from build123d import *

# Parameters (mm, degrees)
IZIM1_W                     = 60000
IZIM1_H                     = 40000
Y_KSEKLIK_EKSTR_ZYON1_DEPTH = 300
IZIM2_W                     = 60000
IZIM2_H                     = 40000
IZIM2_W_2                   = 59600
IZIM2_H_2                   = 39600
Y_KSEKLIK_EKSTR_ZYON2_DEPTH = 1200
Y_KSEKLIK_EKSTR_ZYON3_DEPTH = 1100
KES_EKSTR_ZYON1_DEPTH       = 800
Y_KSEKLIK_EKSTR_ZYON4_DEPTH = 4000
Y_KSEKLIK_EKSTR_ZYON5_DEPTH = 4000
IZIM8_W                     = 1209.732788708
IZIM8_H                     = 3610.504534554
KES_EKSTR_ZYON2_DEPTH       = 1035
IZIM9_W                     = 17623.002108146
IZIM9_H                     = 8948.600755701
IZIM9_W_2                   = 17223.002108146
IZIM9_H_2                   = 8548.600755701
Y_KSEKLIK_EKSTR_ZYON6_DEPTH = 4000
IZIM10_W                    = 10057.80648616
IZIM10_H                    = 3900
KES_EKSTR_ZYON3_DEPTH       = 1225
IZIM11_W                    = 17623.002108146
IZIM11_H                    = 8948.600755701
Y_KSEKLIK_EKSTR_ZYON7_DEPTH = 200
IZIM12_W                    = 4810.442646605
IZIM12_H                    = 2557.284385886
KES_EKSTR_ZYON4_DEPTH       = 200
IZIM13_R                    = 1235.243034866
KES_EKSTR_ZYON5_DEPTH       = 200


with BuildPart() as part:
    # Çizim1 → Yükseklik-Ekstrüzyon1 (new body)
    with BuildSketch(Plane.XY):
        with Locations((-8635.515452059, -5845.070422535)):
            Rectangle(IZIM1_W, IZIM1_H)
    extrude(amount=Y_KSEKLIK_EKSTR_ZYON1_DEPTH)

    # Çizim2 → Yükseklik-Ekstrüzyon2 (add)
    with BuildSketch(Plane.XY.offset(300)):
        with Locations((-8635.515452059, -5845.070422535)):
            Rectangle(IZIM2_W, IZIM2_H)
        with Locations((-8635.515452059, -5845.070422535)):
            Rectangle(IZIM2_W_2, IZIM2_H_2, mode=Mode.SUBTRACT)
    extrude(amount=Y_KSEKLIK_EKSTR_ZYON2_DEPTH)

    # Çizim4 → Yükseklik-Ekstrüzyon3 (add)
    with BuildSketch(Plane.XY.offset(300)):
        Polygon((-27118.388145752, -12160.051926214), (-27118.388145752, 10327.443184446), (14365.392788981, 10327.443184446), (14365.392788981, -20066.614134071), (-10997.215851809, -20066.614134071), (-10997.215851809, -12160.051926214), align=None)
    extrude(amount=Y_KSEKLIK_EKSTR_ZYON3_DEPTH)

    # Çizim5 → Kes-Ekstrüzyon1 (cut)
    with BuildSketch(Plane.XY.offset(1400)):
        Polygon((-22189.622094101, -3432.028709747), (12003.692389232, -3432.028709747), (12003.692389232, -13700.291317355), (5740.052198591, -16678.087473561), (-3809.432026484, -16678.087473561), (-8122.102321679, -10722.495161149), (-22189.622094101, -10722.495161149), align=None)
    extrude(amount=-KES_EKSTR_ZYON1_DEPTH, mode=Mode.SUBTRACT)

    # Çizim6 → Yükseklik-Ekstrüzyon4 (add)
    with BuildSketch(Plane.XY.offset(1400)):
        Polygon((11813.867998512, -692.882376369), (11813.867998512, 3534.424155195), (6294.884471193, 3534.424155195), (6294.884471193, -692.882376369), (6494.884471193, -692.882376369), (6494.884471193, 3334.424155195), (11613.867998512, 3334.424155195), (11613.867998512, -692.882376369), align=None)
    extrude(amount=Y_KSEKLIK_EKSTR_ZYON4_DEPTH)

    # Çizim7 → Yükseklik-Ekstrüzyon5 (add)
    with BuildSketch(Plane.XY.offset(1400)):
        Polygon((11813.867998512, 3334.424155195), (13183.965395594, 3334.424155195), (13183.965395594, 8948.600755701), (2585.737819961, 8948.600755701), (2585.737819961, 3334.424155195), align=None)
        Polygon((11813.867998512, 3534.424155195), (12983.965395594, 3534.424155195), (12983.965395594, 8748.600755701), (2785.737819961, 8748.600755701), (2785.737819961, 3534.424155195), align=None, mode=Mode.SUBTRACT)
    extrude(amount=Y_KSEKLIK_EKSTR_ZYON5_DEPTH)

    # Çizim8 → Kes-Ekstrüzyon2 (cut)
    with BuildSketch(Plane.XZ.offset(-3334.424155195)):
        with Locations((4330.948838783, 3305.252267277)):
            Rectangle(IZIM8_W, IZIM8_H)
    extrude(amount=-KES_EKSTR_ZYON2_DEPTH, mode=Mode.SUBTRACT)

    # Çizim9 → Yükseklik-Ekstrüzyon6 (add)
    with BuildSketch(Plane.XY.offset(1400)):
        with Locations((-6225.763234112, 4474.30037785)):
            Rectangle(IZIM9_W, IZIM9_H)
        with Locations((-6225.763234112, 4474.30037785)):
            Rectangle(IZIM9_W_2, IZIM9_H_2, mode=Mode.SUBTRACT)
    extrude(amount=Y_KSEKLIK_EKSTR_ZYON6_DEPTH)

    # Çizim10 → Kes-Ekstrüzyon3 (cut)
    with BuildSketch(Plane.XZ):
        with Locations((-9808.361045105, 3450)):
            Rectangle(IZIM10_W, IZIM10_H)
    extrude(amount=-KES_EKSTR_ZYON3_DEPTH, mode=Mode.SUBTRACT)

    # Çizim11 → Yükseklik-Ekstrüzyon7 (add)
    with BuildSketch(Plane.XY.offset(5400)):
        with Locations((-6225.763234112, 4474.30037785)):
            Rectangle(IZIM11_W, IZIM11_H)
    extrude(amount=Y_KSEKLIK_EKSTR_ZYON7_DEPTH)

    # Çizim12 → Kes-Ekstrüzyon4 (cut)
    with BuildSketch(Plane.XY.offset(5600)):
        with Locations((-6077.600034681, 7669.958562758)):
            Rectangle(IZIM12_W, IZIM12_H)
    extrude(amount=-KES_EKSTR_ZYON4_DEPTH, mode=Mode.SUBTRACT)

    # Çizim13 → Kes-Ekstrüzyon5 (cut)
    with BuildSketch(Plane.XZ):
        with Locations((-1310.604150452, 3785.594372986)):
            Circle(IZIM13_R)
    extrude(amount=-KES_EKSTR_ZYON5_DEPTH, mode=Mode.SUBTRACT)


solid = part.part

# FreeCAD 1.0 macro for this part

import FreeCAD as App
import Part
import Sketcher


def add_polygon(sketch, points):
    """Adds a closed chain of lines whose ends are joined by coincident constraints."""
    first, n = sketch.GeometryCount, len(points)
    for a, b in zip(points, points[1:] + points[:1]):
        sketch.addGeometry(Part.LineSegment(App.Vector(*a, 0), App.Vector(*b, 0)), False)
    for i in range(n):
        sketch.addConstraint(Sketcher.Constraint("Coincident", first + i, 2, first + (i + 1) % n, 1))

doc = App.newDocument("Part")
body = doc.addObject("PartDesign::Body", "Body")

sketch1 = body.newObject("Sketcher::SketchObject", "Sketch")
sketch1.AttachmentSupport = (doc.getObject("XY_Plane"), [""])
sketch1.MapMode = "FlatFace"
add_polygon(sketch1, [(-38636, 14155), (-38636, -25845), (21364, -25845), (21364, 14155)])
sketch1.addConstraint([
    Sketcher.Constraint("Vertical", 0),
    Sketcher.Constraint("Horizontal", 1),
    Sketcher.Constraint("Vertical", 2),
    Sketcher.Constraint("Horizontal", 3),
    Sketcher.Constraint("DistanceX", 1, 1, 1, 2, 60000.0),
    Sketcher.Constraint("DistanceY", 0, 2, 0, 1, 40000.0),
    Sketcher.Constraint("DistanceX", 0, 2, -1, 1, 38635.515452),
    Sketcher.Constraint("DistanceY", 0, 2, -1, 1, 25845.070423),
])
pad1 = body.newObject("PartDesign::Pad", "Pad")
pad1.Profile = sketch1
pad1.Length = 300

sketch2 = body.newObject("Sketcher::SketchObject", "Sketch001")
sketch2.AttachmentSupport = (doc.getObject("XY_Plane"), [""])
sketch2.MapMode = "FlatFace"
sketch2.AttachmentOffset = App.Placement(App.Vector(0, 0, 300), App.Rotation())
add_polygon(sketch2, [(-38636, 14155), (-38636, -25845), (21364, -25845), (21364, 14155)])
add_polygon(sketch2, [(21164, -25645), (-38436, -25645), (-38436, 13955), (21164, 13955)])
sketch2.addConstraint([
    Sketcher.Constraint("Vertical", 0),
    Sketcher.Constraint("Horizontal", 1),
    Sketcher.Constraint("Vertical", 2),
    Sketcher.Constraint("Horizontal", 3),
    Sketcher.Constraint("Horizontal", 4),
    Sketcher.Constraint("Vertical", 5),
    Sketcher.Constraint("Horizontal", 6),
    Sketcher.Constraint("Vertical", 7),
    Sketcher.Constraint("DistanceX", 1, 1, 1, 2, 60000.0),
    Sketcher.Constraint("DistanceX", 4, 2, 4, 1, 59600.0),
    Sketcher.Constraint("DistanceY", 0, 2, 0, 1, 40000.0),
    Sketcher.Constraint("DistanceY", 5, 1, 5, 2, 39600.0),
    Sketcher.Constraint("DistanceX", 0, 2, 4, 2, 200.0),
    Sketcher.Constraint("DistanceY", 0, 2, 4, 2, 200.0),
    Sketcher.Constraint("DistanceX", 0, 2, -1, 1, 38635.515452),
    Sketcher.Constraint("DistanceY", 0, 2, -1, 1, 25845.070423),
])
pad2 = body.newObject("PartDesign::Pad", "Pad001")
pad2.Profile = sketch2
pad2.Length = 1200

sketch3 = body.newObject("Sketcher::SketchObject", "Sketch002")
sketch3.AttachmentSupport = (doc.getObject("XY_Plane"), [""])
sketch3.MapMode = "FlatFace"
sketch3.AttachmentOffset = App.Placement(App.Vector(0, 0, 300), App.Rotation())
add_polygon(sketch3, [(-27118, 10327), (-27118, -12160), (-10997, -12160), (-10997, -20067), (14365, -20067), (14365, 10327)])
sketch3.addConstraint([
    Sketcher.Constraint("Vertical", 0),
    Sketcher.Constraint("Horizontal", 1),
    Sketcher.Constraint("Vertical", 2),
    Sketcher.Constraint("Horizontal", 3),
    Sketcher.Constraint("Vertical", 4),
    Sketcher.Constraint("Horizontal", 5),
    Sketcher.Constraint("DistanceX", 3, 1, 3, 2, 25362.608641),
    Sketcher.Constraint("DistanceY", 0, 2, 0, 1, 22487.495111),
    Sketcher.Constraint("DistanceY", 4, 1, 4, 2, 30394.057319),
    Sketcher.Constraint("DistanceX", 1, 1, 1, 2, 16121.172294),
    Sketcher.Constraint("DistanceX", 1, 2, -1, 1, 10997.215852),
    Sketcher.Constraint("DistanceY", 0, 2, -1, 1, 12160.051926),
])
pad3 = body.newObject("PartDesign::Pad", "Pad002")
pad3.Profile = sketch3
pad3.Length = 1100

sketch4 = body.newObject("Sketcher::SketchObject", "Sketch003")
sketch4.AttachmentSupport = (doc.getObject("XY_Plane"), [""])
sketch4.MapMode = "FlatFace"
sketch4.AttachmentOffset = App.Placement(App.Vector(0, 0, 1400), App.Rotation())
add_polygon(sketch4, [(12004, -3432), (-22190, -3432), (-22190, -10722), (-8122, -10722), (-3809, -16678), (5740, -16678), (12004, -13700)])
sketch4.addConstraint([
    Sketcher.Constraint("Horizontal", 0),
    Sketcher.Constraint("Vertical", 1),
    Sketcher.Constraint("Horizontal", 2),
    Sketcher.Constraint("Horizontal", 4),
    Sketcher.Constraint("Vertical", 6),
    Sketcher.Constraint("Distance", 5, 6935.4494),
    Sketcher.Constraint("DistanceY", 1, 2, 1, 1, 7290.466451),
    Sketcher.Constraint("DistanceX", -1, 1, 4, 2, 5740.052199),
    Sketcher.Constraint("DistanceX", 0, 2, 0, 1, 34193.314483),
    Sketcher.Constraint("DistanceX", 2, 1, 2, 2, 14067.519772),
    Sketcher.Constraint("DistanceX", 4, 1, 4, 2, 9549.484225),
    Sketcher.Constraint("DistanceY", 6, 1, 6, 2, 10268.262608),
    Sketcher.Constraint("DistanceY", 0, 2, -1, 1, 3432.02871),
    Sketcher.Constraint("DistanceX", 2, 2, -1, 1, 8122.102322),
])
pocket1 = body.newObject("PartDesign::Pocket", "Pocket")
pocket1.Profile = sketch4
pocket1.Length = 800

sketch5 = body.newObject("Sketcher::SketchObject", "Sketch004")
sketch5.AttachmentSupport = (doc.getObject("XY_Plane"), [""])
sketch5.MapMode = "FlatFace"
sketch5.AttachmentOffset = App.Placement(App.Vector(0, 0, 1400), App.Rotation())
add_polygon(sketch5, [(11814, -693), (11814, 3534), (6295, 3534), (6295, -693), (6495, -693), (6495, 3334), (11614, 3334), (11614, -693)])
sketch5.addConstraint([
    Sketcher.Constraint("Vertical", 0),
    Sketcher.Constraint("Horizontal", 1),
    Sketcher.Constraint("Vertical", 2),
    Sketcher.Constraint("Horizontal", 3),
    Sketcher.Constraint("Vertical", 4),
    Sketcher.Constraint("Horizontal", 5),
    Sketcher.Constraint("Vertical", 6),
    Sketcher.Constraint("Horizontal", 7),
    Sketcher.Constraint("Horizontal", 3, 2, 6, 2),
    Sketcher.Constraint("Equal", 3, 7),
    Sketcher.Constraint("DistanceX", 3, 1, 3, 2, 200.0),
    Sketcher.Constraint("DistanceY", 4, 2, 1, 2, 200.0),
    Sketcher.Constraint("DistanceX", -1, 1, 0, 2, 11813.867999),
    Sketcher.Constraint("DistanceY", 0, 1, 0, 2, 4227.306532),
    Sketcher.Constraint("DistanceX", 1, 2, 1, 1, 5518.983527),
    Sketcher.Constraint("DistanceY", -1, 1, 0, 2, 3534.424155),
])
pad4 = body.newObject("PartDesign::Pad", "Pad003")
pad4.Profile = sketch5
pad4.Length = 4000

sketch6 = body.newObject("Sketcher::SketchObject", "Sketch005")
sketch6.AttachmentSupport = (doc.getObject("XY_Plane"), [""])
sketch6.MapMode = "FlatFace"
sketch6.AttachmentOffset = App.Placement(App.Vector(0, 0, 1400), App.Rotation())
add_polygon(sketch6, [(13184, 3334), (13184, 8949), (2586, 8949), (2586, 3334)])
add_polygon(sketch6, [(12984, 3534), (2786, 3534), (2786, 8749), (12984, 8749)])
sketch6.addConstraint([
    Sketcher.Constraint("Vertical", 0),
    Sketcher.Constraint("Horizontal", 1),
    Sketcher.Constraint("Vertical", 2),
    Sketcher.Constraint("Horizontal", 3),
    Sketcher.Constraint("Horizontal", 4),
    Sketcher.Constraint("Vertical", 5),
    Sketcher.Constraint("Horizontal", 6),
    Sketcher.Constraint("Vertical", 7),
    Sketcher.Constraint("DistanceX", 2, 2, 4, 2, 200.0),
    Sketcher.Constraint("DistanceY", 2, 2, 4, 2, 200.0),
    Sketcher.Constraint("DistanceY", 5, 2, 1, 2, 200.0),
    Sketcher.Constraint("DistanceX", 6, 2, 0, 2, 200.0),
    Sketcher.Constraint("DistanceY", 0, 1, 0, 2, 5614.176601),
    Sketcher.Constraint("DistanceX", 1, 2, 1, 1, 10598.227576),
    Sketcher.Constraint("DistanceX", -1, 1, 1, 2, 2585.73782),
    Sketcher.Constraint("DistanceY", -1, 1, 0, 2, 8948.600756),
])
pad5 = body.newObject("PartDesign::Pad", "Pad004")
pad5.Profile = sketch6
pad5.Length = 4000

sketch7 = body.newObject("Sketcher::SketchObject", "Sketch006")
sketch7.AttachmentSupport = (doc.getObject("XZ_Plane"), [""])
sketch7.MapMode = "FlatFace"
sketch7.AttachmentOffset = App.Placement(App.Vector(0, 0, -3334.424155), App.Rotation())
add_polygon(sketch7, [(3726, 5111), (3726, 1500), (4936, 1500), (4936, 5111)])
sketch7.addConstraint([
    Sketcher.Constraint("Vertical", 0),
    Sketcher.Constraint("Horizontal", 1),
    Sketcher.Constraint("Vertical", 2),
    Sketcher.Constraint("Horizontal", 3),
    Sketcher.Constraint("DistanceY", -1, 1, 0, 2, 1500.0),
    Sketcher.Constraint("DistanceX", 1, 1, 1, 2, 1209.732789),
    Sketcher.Constraint("DistanceY", 0, 2, 0, 1, 3610.504535),
    Sketcher.Constraint("DistanceX", -1, 1, 0, 2, 3726.082444),
])
pocket2 = body.newObject("PartDesign::Pocket", "Pocket001")
pocket2.Profile = sketch7
pocket2.Length = 1035

sketch8 = body.newObject("Sketcher::SketchObject", "Sketch007")
sketch8.AttachmentSupport = (doc.getObject("XY_Plane"), [""])
sketch8.MapMode = "FlatFace"
sketch8.AttachmentOffset = App.Placement(App.Vector(0, 0, 1400), App.Rotation())
add_polygon(sketch8, [(-15037, 8949), (-15037, 0), (2586, 0), (2586, 8949)])
add_polygon(sketch8, [(2386, 200), (-14837, 200), (-14837, 8749), (2386, 8749)])
sketch8.addConstraint([
    Sketcher.Constraint("Vertical", 0),
    Sketcher.Constraint("Horizontal", 1),
    Sketcher.Constraint("Vertical", 2),
    Sketcher.Constraint("Horizontal", 3),
    Sketcher.Constraint("Horizontal", 4),
    Sketcher.Constraint("Vertical", 5),
    Sketcher.Constraint("Horizontal", 6),
    Sketcher.Constraint("Vertical", 7),
    Sketcher.Constraint("PointOnObject", 0, 2, -1),
    Sketcher.Constraint("DistanceY", -1, 1, 4, 2, 200.0),
    Sketcher.Constraint("DistanceX", 0, 2, 4, 2, 200.0),
    Sketcher.Constraint("DistanceY", 5, 2, 3, 2, 200.0),
    Sketcher.Constraint("DistanceX", 6, 2, 2, 2, 200.0),
    Sketcher.Constraint("DistanceX", 1, 1, 1, 2, 17623.002108),
    Sketcher.Constraint("DistanceY", 0, 2, 0, 1, 8948.600756),
    Sketcher.Constraint("DistanceX", 0, 2, -1, 1, 15037.264288),
])
pad6 = body.newObject("PartDesign::Pad", "Pad005")
pad6.Profile = sketch8
pad6.Length = 4000

sketch9 = body.newObject("Sketcher::SketchObject", "Sketch008")
sketch9.AttachmentSupport = (doc.getObject("XZ_Plane"), [""])
sketch9.MapMode = "FlatFace"
add_polygon(sketch9, [(-14837, 5400), (-14837, 1500), (-4779, 1500), (-4779, 5400)])
sketch9.addConstraint([
    Sketcher.Constraint("Vertical", 0),
    Sketcher.Constraint("Horizontal", 1),
    Sketcher.Constraint("Vertical", 2),
    Sketcher.Constraint("Horizontal", 3),
    Sketcher.Constraint("DistanceY", 0, 2, 0, 1, 3900.0),
    Sketcher.Constraint("DistanceY", -1, 1, 0, 2, 1500.0),
    Sketcher.Constraint("DistanceX", 1, 1, 1, 2, 10057.806486),
    Sketcher.Constraint("DistanceX", 0, 2, -1, 1, 14837.264288),
])
pocket3 = body.newObject("PartDesign::Pocket", "Pocket002")
pocket3.Profile = sketch9
pocket3.Length = 1225

sketch10 = body.newObject("Sketcher::SketchObject", "Sketch009")
sketch10.AttachmentSupport = (doc.getObject("XY_Plane"), [""])
sketch10.MapMode = "FlatFace"
sketch10.AttachmentOffset = App.Placement(App.Vector(0, 0, 5400), App.Rotation())
add_polygon(sketch10, [(-15037, 8949), (-15037, 0), (2586, 0), (2586, 8949)])
sketch10.addConstraint([
    Sketcher.Constraint("Vertical", 0),
    Sketcher.Constraint("Horizontal", 1),
    Sketcher.Constraint("Vertical", 2),
    Sketcher.Constraint("Horizontal", 3),
    Sketcher.Constraint("PointOnObject", 0, 2, -1),
    Sketcher.Constraint("DistanceX", 1, 1, 1, 2, 17623.002108),
    Sketcher.Constraint("DistanceY", 0, 2, 0, 1, 8948.600756),
    Sketcher.Constraint("DistanceX", 0, 2, -1, 1, 15037.264288),
])
pad7 = body.newObject("PartDesign::Pad", "Pad006")
pad7.Profile = sketch10
pad7.Length = 200

sketch11 = body.newObject("Sketcher::SketchObject", "Sketch010")
sketch11.AttachmentSupport = (doc.getObject("XY_Plane"), [""])
sketch11.MapMode = "FlatFace"
sketch11.AttachmentOffset = App.Placement(App.Vector(0, 0, 5600), App.Rotation())
add_polygon(sketch11, [(-8483, 8949), (-8483, 6391), (-3672, 6391), (-3672, 8949)])
sketch11.addConstraint([
    Sketcher.Constraint("Vertical", 0),
    Sketcher.Constraint("Horizontal", 1),
    Sketcher.Constraint("Vertical", 2),
    Sketcher.Constraint("Horizontal", 3),
    Sketcher.Constraint("DistanceX", 1, 1, 1, 2, 4810.442647),
    Sketcher.Constraint("DistanceY", 0, 2, 0, 1, 2557.284386),
    Sketcher.Constraint("DistanceY", -1, 1, 0, 2, 6391.31637),
    Sketcher.Constraint("DistanceX", 1, 2, -1, 1, 3672.378711),
])
pocket4 = body.newObject("PartDesign::Pocket", "Pocket003")
pocket4.Profile = sketch11
pocket4.Length = 200

sketch12 = body.newObject("Sketcher::SketchObject", "Sketch011")
sketch12.AttachmentSupport = (doc.getObject("XZ_Plane"), [""])
sketch12.MapMode = "FlatFace"
sketch12.addGeometry(Part.Circle(App.Vector(-1311, 3786, 0), App.Vector(0, 0, 1), 1235), False)
sketch12.addConstraint([
    Sketcher.Constraint("Diameter", 0, 2470.48607),
    Sketcher.Constraint("DistanceX", 0, 3, -1, 1, 1310.60415),
    Sketcher.Constraint("DistanceY", -1, 1, 0, 3, 3785.594373),
])
pocket5 = body.newObject("PartDesign::Pocket", "Pocket004")
pocket5.Profile = sketch12
pocket5.Length = 200

doc.recompute()
